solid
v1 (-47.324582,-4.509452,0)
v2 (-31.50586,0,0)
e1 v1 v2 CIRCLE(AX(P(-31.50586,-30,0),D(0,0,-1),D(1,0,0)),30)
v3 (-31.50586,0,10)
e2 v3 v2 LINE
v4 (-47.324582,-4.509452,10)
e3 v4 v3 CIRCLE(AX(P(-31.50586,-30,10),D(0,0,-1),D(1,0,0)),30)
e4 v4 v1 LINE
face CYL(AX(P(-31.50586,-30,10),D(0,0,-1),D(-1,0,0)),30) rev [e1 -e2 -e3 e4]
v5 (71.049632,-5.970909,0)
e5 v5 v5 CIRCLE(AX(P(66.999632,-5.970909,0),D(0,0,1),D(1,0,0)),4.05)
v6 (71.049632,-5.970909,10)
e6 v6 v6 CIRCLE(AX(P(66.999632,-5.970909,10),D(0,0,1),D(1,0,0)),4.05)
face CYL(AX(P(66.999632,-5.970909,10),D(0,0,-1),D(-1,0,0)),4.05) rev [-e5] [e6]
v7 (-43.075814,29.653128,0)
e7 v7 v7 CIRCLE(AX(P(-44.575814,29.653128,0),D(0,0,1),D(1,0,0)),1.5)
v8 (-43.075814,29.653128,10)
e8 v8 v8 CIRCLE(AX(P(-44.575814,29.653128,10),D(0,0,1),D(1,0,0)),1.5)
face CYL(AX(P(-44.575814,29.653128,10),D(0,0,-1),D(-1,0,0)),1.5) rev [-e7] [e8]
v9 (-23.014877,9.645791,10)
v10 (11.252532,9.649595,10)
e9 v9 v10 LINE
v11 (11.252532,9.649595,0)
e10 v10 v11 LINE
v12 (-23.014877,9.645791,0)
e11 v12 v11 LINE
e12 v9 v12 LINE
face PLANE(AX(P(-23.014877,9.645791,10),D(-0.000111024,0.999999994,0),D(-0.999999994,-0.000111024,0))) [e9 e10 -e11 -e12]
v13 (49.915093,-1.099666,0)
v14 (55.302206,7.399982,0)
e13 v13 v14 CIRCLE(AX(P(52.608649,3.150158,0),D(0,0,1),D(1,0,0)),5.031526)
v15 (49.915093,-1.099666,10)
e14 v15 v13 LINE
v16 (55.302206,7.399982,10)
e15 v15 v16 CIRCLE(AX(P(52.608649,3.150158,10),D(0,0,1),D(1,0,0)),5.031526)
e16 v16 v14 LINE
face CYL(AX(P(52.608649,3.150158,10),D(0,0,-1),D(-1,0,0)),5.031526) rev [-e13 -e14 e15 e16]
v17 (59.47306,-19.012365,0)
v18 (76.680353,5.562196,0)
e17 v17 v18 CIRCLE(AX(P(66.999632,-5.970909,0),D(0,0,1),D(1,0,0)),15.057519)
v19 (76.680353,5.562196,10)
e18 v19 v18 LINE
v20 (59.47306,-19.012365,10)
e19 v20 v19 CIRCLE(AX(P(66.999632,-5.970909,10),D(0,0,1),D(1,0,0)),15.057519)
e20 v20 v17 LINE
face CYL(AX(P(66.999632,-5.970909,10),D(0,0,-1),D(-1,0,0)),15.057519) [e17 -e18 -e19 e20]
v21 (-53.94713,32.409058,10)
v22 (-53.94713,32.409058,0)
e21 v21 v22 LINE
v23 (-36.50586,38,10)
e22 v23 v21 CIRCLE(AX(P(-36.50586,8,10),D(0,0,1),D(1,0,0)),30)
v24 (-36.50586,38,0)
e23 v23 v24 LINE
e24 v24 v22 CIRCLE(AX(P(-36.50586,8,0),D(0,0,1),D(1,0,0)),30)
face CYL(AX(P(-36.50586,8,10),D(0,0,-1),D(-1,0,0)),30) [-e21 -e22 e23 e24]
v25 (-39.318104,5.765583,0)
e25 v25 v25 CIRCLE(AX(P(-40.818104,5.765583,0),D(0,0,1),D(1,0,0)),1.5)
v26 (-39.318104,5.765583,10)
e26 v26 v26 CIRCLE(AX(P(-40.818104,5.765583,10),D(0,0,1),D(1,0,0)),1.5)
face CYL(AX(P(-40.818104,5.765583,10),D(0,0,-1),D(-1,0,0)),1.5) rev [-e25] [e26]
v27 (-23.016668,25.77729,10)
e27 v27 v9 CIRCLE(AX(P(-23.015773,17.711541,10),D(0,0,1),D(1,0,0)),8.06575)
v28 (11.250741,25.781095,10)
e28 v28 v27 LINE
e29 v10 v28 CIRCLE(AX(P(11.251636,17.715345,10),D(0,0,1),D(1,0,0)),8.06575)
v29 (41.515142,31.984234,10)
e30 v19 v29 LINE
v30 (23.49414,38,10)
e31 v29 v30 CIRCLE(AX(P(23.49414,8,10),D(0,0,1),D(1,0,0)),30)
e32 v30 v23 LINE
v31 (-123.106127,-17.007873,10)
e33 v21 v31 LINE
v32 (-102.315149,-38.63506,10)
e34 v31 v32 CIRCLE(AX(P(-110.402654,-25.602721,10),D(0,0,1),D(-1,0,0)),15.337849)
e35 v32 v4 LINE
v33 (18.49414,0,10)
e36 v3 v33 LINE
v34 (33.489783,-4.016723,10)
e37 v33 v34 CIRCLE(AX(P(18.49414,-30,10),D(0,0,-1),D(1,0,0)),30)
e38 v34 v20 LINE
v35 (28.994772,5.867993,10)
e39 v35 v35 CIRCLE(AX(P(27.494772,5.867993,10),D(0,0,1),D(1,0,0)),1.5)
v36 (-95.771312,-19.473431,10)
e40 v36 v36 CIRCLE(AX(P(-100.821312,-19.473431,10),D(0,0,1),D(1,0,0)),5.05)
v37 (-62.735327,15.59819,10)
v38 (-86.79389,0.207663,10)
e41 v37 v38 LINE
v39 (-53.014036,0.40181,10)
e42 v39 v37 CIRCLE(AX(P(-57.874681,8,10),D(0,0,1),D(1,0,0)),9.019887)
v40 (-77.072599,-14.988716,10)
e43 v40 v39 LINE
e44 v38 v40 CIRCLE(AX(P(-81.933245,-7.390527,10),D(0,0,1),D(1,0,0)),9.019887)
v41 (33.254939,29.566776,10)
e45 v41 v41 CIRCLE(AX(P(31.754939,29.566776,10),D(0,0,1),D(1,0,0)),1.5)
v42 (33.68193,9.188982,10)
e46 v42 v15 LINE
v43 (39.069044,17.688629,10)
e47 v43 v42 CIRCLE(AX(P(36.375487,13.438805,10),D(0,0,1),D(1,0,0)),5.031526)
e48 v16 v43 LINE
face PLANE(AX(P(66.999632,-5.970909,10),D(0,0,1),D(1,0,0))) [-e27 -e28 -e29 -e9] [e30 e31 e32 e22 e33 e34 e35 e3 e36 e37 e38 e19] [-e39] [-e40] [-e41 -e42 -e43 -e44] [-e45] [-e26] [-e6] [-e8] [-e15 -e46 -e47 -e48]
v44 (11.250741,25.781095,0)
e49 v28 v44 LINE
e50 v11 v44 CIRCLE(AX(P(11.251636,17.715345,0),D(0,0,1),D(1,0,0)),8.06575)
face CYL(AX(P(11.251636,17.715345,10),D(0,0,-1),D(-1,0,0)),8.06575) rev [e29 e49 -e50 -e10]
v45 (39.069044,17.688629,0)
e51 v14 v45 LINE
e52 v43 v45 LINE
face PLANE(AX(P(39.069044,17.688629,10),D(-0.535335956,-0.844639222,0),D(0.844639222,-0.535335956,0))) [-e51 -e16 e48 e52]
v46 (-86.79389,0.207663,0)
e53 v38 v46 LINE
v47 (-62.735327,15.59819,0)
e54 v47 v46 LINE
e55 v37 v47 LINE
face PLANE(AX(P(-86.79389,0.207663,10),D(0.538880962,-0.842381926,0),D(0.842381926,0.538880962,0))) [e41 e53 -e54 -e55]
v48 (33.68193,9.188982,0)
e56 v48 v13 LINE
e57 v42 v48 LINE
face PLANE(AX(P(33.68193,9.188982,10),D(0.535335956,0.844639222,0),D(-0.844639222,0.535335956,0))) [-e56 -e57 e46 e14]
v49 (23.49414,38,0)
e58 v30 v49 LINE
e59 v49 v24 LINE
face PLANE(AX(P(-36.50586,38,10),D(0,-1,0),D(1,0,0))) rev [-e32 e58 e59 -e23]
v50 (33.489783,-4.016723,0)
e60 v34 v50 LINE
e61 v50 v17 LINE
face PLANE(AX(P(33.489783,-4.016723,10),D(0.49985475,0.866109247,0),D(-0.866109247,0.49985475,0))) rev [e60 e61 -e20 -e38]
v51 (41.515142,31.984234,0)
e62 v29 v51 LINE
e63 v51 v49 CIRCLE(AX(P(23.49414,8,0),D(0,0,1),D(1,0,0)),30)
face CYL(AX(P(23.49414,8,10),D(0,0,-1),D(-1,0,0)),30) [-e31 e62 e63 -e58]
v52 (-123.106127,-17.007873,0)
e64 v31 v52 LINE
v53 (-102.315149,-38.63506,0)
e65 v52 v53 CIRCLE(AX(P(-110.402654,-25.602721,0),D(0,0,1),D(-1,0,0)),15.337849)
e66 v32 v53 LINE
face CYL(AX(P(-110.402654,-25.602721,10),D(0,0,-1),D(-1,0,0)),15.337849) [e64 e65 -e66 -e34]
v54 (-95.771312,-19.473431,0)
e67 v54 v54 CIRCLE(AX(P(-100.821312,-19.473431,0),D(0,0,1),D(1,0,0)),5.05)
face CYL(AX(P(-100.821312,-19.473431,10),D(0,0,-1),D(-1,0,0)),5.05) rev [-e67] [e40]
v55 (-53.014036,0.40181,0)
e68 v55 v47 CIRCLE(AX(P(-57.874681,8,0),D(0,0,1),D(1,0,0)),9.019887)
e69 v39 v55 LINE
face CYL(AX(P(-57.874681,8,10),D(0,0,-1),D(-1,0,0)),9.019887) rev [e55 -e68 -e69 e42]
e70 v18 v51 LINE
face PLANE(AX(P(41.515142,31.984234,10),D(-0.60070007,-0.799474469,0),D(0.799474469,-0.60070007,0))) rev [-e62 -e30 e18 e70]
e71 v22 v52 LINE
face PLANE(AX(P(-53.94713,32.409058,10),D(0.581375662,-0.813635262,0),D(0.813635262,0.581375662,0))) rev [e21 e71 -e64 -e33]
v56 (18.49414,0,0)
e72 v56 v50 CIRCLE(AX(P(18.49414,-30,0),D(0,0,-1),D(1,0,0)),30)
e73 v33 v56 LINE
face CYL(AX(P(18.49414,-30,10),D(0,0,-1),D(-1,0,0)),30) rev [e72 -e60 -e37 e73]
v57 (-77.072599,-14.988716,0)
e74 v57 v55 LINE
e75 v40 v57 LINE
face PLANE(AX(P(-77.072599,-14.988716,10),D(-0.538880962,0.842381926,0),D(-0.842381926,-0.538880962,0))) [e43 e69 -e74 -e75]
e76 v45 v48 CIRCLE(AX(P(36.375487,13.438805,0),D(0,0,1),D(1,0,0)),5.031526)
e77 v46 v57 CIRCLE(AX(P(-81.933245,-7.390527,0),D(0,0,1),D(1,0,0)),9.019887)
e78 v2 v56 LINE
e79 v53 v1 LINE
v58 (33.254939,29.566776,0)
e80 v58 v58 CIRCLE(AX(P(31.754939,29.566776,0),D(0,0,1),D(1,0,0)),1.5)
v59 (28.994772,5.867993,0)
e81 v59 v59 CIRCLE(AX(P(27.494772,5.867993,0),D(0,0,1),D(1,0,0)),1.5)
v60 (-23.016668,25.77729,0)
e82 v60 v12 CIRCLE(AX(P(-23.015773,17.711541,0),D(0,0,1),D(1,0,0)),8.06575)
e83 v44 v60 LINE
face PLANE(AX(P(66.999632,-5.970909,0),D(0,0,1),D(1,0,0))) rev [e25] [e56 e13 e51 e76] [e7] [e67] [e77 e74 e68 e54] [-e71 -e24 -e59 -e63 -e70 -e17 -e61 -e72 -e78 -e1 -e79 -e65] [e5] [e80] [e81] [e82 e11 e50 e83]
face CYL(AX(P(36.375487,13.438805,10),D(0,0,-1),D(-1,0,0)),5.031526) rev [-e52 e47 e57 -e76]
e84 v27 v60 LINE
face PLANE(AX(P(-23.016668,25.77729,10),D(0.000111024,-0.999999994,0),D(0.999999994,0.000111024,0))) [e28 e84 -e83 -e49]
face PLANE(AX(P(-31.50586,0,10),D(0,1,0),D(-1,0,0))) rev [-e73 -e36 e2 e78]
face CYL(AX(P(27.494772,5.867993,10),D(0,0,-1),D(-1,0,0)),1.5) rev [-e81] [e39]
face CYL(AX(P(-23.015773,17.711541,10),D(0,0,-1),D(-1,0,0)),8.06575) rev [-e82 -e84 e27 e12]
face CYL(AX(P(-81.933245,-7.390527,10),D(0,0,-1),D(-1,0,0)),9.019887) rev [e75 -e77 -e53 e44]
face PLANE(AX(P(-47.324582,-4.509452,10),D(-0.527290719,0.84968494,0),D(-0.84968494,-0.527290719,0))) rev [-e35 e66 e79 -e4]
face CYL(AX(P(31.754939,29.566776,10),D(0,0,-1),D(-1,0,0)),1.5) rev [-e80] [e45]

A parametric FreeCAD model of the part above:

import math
import FreeCAD as App
import Part
import Sketcher
from FreeCAD import Vector
Q = App.Units.Quantity

doc = App.newDocument("Part")
params = doc.addObject("Spreadsheet::Sheet", "Params")
for row, (alias, value) in enumerate([
    ("sketch1_diameter", "3 mm"),
    ("sketch1_radius", "30 mm"),
    ("sketch1_diameter2", "8.1 mm"),
    ("sketch1_diameter3", "10.1 mm"),
    ("sketch1_width", "60 mm"),
    ("pad1_length", "10 mm"),
], start=1):
    params.set(f"A{row}", alias)
    params.set(f"B{row}", "=" + value)
    params.setAlias(f"B{row}", alias)

body = doc.addObject("PartDesign::Body", "Body")

# Sketch on XY plane
sketch1 = body.newObject("Sketcher::SketchObject", "Sketch")
sketch1.AttachmentSupport = (doc.getObject("XY_Plane"), [""])
sketch1.MapMode = "FlatFace"
sketch1.addGeometry(Part.LineSegment(Vector(23.5, 38, 0), Vector(-36.5, 38, 0)), False)
sketch1.addGeometry(Part.ArcOfCircle(Part.Circle(Vector(-36.5, 8, 0), Vector(0, 0, 1), 30), math.radians(90), math.radians(126)), False)
sketch1.addGeometry(Part.LineSegment(Vector(-53.9, 32.4, 0), Vector(-123.1, -17, 0)), False)
sketch1.addGeometry(Part.ArcOfCircle(Part.Circle(Vector(-110.4, -25.6, 0), Vector(0, 0, 1), 15.3), math.radians(146), math.radians(302)), False)
sketch1.addGeometry(Part.LineSegment(Vector(-102.3, -38.6, 0), Vector(-47.3, -4.5, 0)), False)
sketch1.addGeometry(Part.ArcOfCircle(Part.Circle(Vector(-31.5, -30, 0), Vector(0, 0, 1), 30), math.radians(90), math.radians(122)), False)
sketch1.addGeometry(Part.LineSegment(Vector(-31.5, 0, 0), Vector(18.5, 0, 0)), False)
sketch1.addGeometry(Part.ArcOfCircle(Part.Circle(Vector(18.5, -30, 0), Vector(0, 0, 1), 30), math.radians(60), math.radians(90)), False)
sketch1.addGeometry(Part.LineSegment(Vector(33.5, -4, 0), Vector(59.5, -19, 0)), False)
sketch1.addGeometry(Part.ArcOfCircle(Part.Circle(Vector(67, -6, 0), Vector(0, 0, 1), 15.1), math.radians(-120), math.radians(50)), False)
sketch1.addGeometry(Part.LineSegment(Vector(76.7, 5.6, 0), Vector(41.5, 32, 0)), False)
sketch1.addGeometry(Part.ArcOfCircle(Part.Circle(Vector(23.5, 8, 0), Vector(0, 0, 1), 30), math.radians(53), math.radians(90)), False)
sketch1.addGeometry(Part.Circle(Vector(67, -6, 0), Vector(0, 0, 1), 4), False)
sketch1.addGeometry(Part.Circle(Vector(-100.8, -19.5, 0), Vector(0, 0, 1), 5), False)
sketch1.addGeometry(Part.LineSegment(Vector(-86.8, 0.2, 0), Vector(-62.7, 15.6, 0)), False)
sketch1.addGeometry(Part.ArcOfCircle(Part.Circle(Vector(-57.9, 8, 0), Vector(0, 0, 1), 9), math.radians(-57), math.radians(123)), False)
sketch1.addGeometry(Part.LineSegment(Vector(-53, 0.4, 0), Vector(-77.1, -15, 0)), False)
sketch1.addGeometry(Part.ArcOfCircle(Part.Circle(Vector(-81.9, -7.4, 0), Vector(0, 0, 1), 9), math.radians(123), math.radians(303)), False)
sketch1.addGeometry(Part.Circle(Vector(27.5, 5.9, 0), Vector(0, 0, 1), 1.5), False)
sketch1.addGeometry(Part.LineSegment(Vector(39.1, 17.7, 0), Vector(55.3, 7.4, 0)), False)
sketch1.addGeometry(Part.ArcOfCircle(Part.Circle(Vector(52.6, 3.2, 0), Vector(0, 0, 1), 5), math.radians(-122), math.radians(58)), False)
sketch1.addGeometry(Part.LineSegment(Vector(49.9, -1.1, 0), Vector(33.7, 9.2, 0)), False)
sketch1.addGeometry(Part.ArcOfCircle(Part.Circle(Vector(36.4, 13.4, 0), Vector(0, 0, 1), 5), math.radians(58), math.radians(238)), False)
sketch1.addGeometry(Part.Circle(Vector(31.8, 29.6, 0), Vector(0, 0, 1), 1.5), False)
sketch1.addGeometry(Part.LineSegment(Vector(-23, 25.8, 0), Vector(11.3, 25.8, 0)), False)
sketch1.addGeometry(Part.ArcOfCircle(Part.Circle(Vector(11.3, 17.7, 0), Vector(0, 0, 1), 8.1), math.radians(-90), math.radians(90)), False)
sketch1.addGeometry(Part.LineSegment(Vector(11.3, 9.6, 0), Vector(-23, 9.6, 0)), False)
sketch1.addGeometry(Part.ArcOfCircle(Part.Circle(Vector(-23, 17.7, 0), Vector(0, 0, 1), 8.1), math.radians(90), math.radians(270)), False)
sketch1.addGeometry(Part.Circle(Vector(-40.8, 5.8, 0), Vector(0, 0, 1), 1.5), False)
sketch1.addGeometry(Part.Circle(Vector(-44.6, 29.7, 0), Vector(0, 0, 1), 1.5), False)
sketch1.addConstraint(Sketcher.Constraint("Tangent", 0, 2, 1, 1))
sketch1.addConstraint(Sketcher.Constraint("Tangent", 1, 2, 2, 1))
sketch1.addConstraint(Sketcher.Constraint("Coincident", 2, 2, 3, 1))
sketch1.addConstraint(Sketcher.Constraint("Tangent", 3, 2, 4, 1))
sketch1.addConstraint(Sketcher.Constraint("Tangent", 4, 2, 5, 2))
sketch1.addConstraint(Sketcher.Constraint("Tangent", 5, 1, 6, 1))
sketch1.addConstraint(Sketcher.Constraint("Tangent", 6, 2, 7, 2))
sketch1.addConstraint(Sketcher.Constraint("Tangent", 7, 1, 8, 1))
sketch1.addConstraint(Sketcher.Constraint("Tangent", 8, 2, 9, 1))
sketch1.addConstraint(Sketcher.Constraint("Coincident", 9, 2, 10, 1))
sketch1.addConstraint(Sketcher.Constraint("Tangent", 10, 2, 11, 1))
sketch1.addConstraint(Sketcher.Constraint("Tangent", 11, 2, 0, 1))
sketch1.addConstraint(Sketcher.Constraint("Tangent", 14, 2, 15, 2))
sketch1.addConstraint(Sketcher.Constraint("Tangent", 15, 1, 16, 1))
sketch1.addConstraint(Sketcher.Constraint("Tangent", 16, 2, 17, 2))
sketch1.addConstraint(Sketcher.Constraint("Tangent", 17, 1, 14, 1))
sketch1.addConstraint(Sketcher.Constraint("Tangent", 19, 2, 20, 2))
sketch1.addConstraint(Sketcher.Constraint("Tangent", 20, 1, 21, 1))
sketch1.addConstraint(Sketcher.Constraint("Tangent", 21, 2, 22, 2))
sketch1.addConstraint(Sketcher.Constraint("Tangent", 22, 1, 19, 1))
sketch1.addConstraint(Sketcher.Constraint("Tangent", 24, 2, 25, 2))
sketch1.addConstraint(Sketcher.Constraint("Tangent", 25, 1, 26, 1))
sketch1.addConstraint(Sketcher.Constraint("Tangent", 26, 2, 27, 2))
sketch1.addConstraint(Sketcher.Constraint("Tangent", 27, 1, 24, 1))
sketch1.addConstraint(Sketcher.Constraint("Horizontal", 0))
sketch1.addConstraint(Sketcher.Constraint("Horizontal", 6))
sketch1.addConstraint(Sketcher.Constraint("Coincident", 12, 3, 9, 3))
sketch1.addConstraint(Sketcher.Constraint("Equal", 1, 5))
sketch1.addConstraint(Sketcher.Constraint("Equal", 5, 7))
sketch1.addConstraint(Sketcher.Constraint("Equal", 7, 11))
sketch1.addConstraint(Sketcher.Constraint("Equal", 15, 17))
sketch1.addConstraint(Sketcher.Constraint("Equal", 20, 22))
sketch1.addConstraint(Sketcher.Constraint("Equal", 18, 23))
sketch1.addConstraint(Sketcher.Constraint("Equal", 25, 27))
sketch1.addConstraint(Sketcher.Constraint("Equal", 23, 28))
sketch1.addConstraint(Sketcher.Constraint("Equal", 28, 29))
sketch1.addConstraint(Sketcher.Constraint("PointOnObject", 5, 1, -1))
sketch1.addConstraint(Sketcher.Constraint("Horizontal", 11, 3, 15, 3))
sketch1.addConstraint(Sketcher.Constraint("Diameter", 18, Q("3 mm")))
sketch1.addConstraint(Sketcher.Constraint("Radius", 1, Q("30 mm")))
sketch1.addConstraint(Sketcher.Constraint("Diameter", 12, Q("8.1 mm")))
sketch1.addConstraint(Sketcher.Constraint("Diameter", 13, Q("10.1 mm")))
sketch1.addConstraint(Sketcher.Constraint("DistanceX", 0, 2, 0, 1, Q("60 mm")))
sketch1.addConstraint(Sketcher.Constraint("DistanceX", 6, 1, 6, 2, Q("50 mm")))
sketch1.addConstraint(Sketcher.Constraint("Distance", 2, Q("85 mm")))
sketch1.addConstraint(Sketcher.Constraint("Distance", 8, Q("30 mm")))
sketch1.addConstraint(Sketcher.Constraint("DistanceY", -1, 1, 1, 3, Q("8 mm")))
sketch1.addConstraint(Sketcher.Constraint("DistanceX", 1, 3, 5, 3, Q("5 mm")))
sketch1.addConstraint(Sketcher.Constraint("Radius", 3, Q("15.337849 mm")))
sketch1.addConstraint(Sketcher.Constraint("Radius", 9, Q("15.057519 mm")))
sketch1.addConstraint(Sketcher.Constraint("Radius", 25, Q("8.06575 mm")))
sketch1.addConstraint(Sketcher.Constraint("Radius", 15, Q("9.019887 mm")))
sketch1.addConstraint(Sketcher.Constraint("Radius", 20, Q("5.031526 mm")))
sketch1.addConstraint(Sketcher.Constraint("DistanceX", 16, 2, -1, 1, Q("77.072599 mm")))
sketch1.addConstraint(Sketcher.Constraint("DistanceX", 11, 3, 23, 3, Q("8.260799 mm")))
sketch1.addConstraint(Sketcher.Constraint("DistanceX", 15, 3, 4, 2, Q("10.5501 mm")))
sketch1.addConstraint(Sketcher.Constraint("DistanceX", 22, 1, 10, 2, Q("2.446098 mm")))
sketch1.addConstraint(Sketcher.Constraint("DistanceX", 24, 2, 11, 2, Q("12.243399 mm")))
sketch1.addConstraint(Sketcher.Constraint("DistanceY", 18, 3, 24, 2, Q("19.913101 mm")))
sketch1.addConstraint(Sketcher.Constraint("Distance", 10, Q("43.985408 mm")))
sketch1.addConstraint(Sketcher.Constraint("Distance", 14, Q("28.560161 mm")))
sketch1.addConstraint(Sketcher.Constraint("Distance", 19, Q("19.219049 mm")))
sketch1.addConstraint(Sketcher.Constraint("Distance", 24, Q("34.26741 mm")))
sketch1.addConstraint(Sketcher.Constraint("DistanceX", 1, 3, -1, 1, Q("36.50586 mm")))
sketch1.addConstraint(Sketcher.Constraint("DistanceY", 3, 3, -1, 1, Q("25.602721 mm")))
sketch1.addConstraint(Sketcher.Constraint("DistanceY", 9, 3, -1, 1, Q("5.970909 mm")))
sketch1.addConstraint(Sketcher.Constraint("DistanceX", 13, 3, -1, 1, Q("100.821312 mm")))
sketch1.addConstraint(Sketcher.Constraint("DistanceY", 13, 3, -1, 1, Q("19.473431 mm")))
sketch1.addConstraint(Sketcher.Constraint("DistanceX", 15, 3, -1, 1, Q("57.874681 mm")))
sketch1.addConstraint(Sketcher.Constraint("DistanceX", -1, 1, 18, 3, Q("27.494772 mm")))
sketch1.addConstraint(Sketcher.Constraint("DistanceX", -1, 1, 20, 3, Q("52.608649 mm")))
sketch1.addConstraint(Sketcher.Constraint("DistanceY", -1, 1, 27, 3, Q("17.711541 mm")))
sketch1.addConstraint(Sketcher.Constraint("DistanceY", -1, 1, 19, 2, Q("7.399982 mm")))
sketch1.addConstraint(Sketcher.Constraint("DistanceX", -1, 1, 25, 1, Q("11.252532 mm")))
sketch1.addConstraint(Sketcher.Constraint("DistanceY", 22, 3, 23, 3, Q("16.127971 mm")))
sketch1.addConstraint(Sketcher.Constraint("DistanceX", 28, 3, 27, 3, Q("17.802331 mm")))
sketch1.addConstraint(Sketcher.Constraint("DistanceY", 17, 3, 28, 3, Q("13.15611 mm")))
sketch1.addConstraint(Sketcher.Constraint("DistanceX", 29, 3, 28, 3, Q("3.757711 mm")))
sketch1.addConstraint(Sketcher.Constraint("DistanceY", 29, 3, 1, 2, Q("2.75593 mm")))
sketch1.setExpression("Constraints[38]", "Params.sketch1_diameter")
sketch1.setExpression("Constraints[39]", "Params.sketch1_radius")
sketch1.setExpression("Constraints[40]", "Params.sketch1_diameter2")
sketch1.setExpression("Constraints[41]", "Params.sketch1_diameter3")
sketch1.setExpression("Constraints[42]", "Params.sketch1_width")
pad1 = body.newObject("PartDesign::Pad", "Pad")
pad1.Profile = sketch1
pad1.setExpression("Length", "Params.pad1_length")

doc.recompute()
